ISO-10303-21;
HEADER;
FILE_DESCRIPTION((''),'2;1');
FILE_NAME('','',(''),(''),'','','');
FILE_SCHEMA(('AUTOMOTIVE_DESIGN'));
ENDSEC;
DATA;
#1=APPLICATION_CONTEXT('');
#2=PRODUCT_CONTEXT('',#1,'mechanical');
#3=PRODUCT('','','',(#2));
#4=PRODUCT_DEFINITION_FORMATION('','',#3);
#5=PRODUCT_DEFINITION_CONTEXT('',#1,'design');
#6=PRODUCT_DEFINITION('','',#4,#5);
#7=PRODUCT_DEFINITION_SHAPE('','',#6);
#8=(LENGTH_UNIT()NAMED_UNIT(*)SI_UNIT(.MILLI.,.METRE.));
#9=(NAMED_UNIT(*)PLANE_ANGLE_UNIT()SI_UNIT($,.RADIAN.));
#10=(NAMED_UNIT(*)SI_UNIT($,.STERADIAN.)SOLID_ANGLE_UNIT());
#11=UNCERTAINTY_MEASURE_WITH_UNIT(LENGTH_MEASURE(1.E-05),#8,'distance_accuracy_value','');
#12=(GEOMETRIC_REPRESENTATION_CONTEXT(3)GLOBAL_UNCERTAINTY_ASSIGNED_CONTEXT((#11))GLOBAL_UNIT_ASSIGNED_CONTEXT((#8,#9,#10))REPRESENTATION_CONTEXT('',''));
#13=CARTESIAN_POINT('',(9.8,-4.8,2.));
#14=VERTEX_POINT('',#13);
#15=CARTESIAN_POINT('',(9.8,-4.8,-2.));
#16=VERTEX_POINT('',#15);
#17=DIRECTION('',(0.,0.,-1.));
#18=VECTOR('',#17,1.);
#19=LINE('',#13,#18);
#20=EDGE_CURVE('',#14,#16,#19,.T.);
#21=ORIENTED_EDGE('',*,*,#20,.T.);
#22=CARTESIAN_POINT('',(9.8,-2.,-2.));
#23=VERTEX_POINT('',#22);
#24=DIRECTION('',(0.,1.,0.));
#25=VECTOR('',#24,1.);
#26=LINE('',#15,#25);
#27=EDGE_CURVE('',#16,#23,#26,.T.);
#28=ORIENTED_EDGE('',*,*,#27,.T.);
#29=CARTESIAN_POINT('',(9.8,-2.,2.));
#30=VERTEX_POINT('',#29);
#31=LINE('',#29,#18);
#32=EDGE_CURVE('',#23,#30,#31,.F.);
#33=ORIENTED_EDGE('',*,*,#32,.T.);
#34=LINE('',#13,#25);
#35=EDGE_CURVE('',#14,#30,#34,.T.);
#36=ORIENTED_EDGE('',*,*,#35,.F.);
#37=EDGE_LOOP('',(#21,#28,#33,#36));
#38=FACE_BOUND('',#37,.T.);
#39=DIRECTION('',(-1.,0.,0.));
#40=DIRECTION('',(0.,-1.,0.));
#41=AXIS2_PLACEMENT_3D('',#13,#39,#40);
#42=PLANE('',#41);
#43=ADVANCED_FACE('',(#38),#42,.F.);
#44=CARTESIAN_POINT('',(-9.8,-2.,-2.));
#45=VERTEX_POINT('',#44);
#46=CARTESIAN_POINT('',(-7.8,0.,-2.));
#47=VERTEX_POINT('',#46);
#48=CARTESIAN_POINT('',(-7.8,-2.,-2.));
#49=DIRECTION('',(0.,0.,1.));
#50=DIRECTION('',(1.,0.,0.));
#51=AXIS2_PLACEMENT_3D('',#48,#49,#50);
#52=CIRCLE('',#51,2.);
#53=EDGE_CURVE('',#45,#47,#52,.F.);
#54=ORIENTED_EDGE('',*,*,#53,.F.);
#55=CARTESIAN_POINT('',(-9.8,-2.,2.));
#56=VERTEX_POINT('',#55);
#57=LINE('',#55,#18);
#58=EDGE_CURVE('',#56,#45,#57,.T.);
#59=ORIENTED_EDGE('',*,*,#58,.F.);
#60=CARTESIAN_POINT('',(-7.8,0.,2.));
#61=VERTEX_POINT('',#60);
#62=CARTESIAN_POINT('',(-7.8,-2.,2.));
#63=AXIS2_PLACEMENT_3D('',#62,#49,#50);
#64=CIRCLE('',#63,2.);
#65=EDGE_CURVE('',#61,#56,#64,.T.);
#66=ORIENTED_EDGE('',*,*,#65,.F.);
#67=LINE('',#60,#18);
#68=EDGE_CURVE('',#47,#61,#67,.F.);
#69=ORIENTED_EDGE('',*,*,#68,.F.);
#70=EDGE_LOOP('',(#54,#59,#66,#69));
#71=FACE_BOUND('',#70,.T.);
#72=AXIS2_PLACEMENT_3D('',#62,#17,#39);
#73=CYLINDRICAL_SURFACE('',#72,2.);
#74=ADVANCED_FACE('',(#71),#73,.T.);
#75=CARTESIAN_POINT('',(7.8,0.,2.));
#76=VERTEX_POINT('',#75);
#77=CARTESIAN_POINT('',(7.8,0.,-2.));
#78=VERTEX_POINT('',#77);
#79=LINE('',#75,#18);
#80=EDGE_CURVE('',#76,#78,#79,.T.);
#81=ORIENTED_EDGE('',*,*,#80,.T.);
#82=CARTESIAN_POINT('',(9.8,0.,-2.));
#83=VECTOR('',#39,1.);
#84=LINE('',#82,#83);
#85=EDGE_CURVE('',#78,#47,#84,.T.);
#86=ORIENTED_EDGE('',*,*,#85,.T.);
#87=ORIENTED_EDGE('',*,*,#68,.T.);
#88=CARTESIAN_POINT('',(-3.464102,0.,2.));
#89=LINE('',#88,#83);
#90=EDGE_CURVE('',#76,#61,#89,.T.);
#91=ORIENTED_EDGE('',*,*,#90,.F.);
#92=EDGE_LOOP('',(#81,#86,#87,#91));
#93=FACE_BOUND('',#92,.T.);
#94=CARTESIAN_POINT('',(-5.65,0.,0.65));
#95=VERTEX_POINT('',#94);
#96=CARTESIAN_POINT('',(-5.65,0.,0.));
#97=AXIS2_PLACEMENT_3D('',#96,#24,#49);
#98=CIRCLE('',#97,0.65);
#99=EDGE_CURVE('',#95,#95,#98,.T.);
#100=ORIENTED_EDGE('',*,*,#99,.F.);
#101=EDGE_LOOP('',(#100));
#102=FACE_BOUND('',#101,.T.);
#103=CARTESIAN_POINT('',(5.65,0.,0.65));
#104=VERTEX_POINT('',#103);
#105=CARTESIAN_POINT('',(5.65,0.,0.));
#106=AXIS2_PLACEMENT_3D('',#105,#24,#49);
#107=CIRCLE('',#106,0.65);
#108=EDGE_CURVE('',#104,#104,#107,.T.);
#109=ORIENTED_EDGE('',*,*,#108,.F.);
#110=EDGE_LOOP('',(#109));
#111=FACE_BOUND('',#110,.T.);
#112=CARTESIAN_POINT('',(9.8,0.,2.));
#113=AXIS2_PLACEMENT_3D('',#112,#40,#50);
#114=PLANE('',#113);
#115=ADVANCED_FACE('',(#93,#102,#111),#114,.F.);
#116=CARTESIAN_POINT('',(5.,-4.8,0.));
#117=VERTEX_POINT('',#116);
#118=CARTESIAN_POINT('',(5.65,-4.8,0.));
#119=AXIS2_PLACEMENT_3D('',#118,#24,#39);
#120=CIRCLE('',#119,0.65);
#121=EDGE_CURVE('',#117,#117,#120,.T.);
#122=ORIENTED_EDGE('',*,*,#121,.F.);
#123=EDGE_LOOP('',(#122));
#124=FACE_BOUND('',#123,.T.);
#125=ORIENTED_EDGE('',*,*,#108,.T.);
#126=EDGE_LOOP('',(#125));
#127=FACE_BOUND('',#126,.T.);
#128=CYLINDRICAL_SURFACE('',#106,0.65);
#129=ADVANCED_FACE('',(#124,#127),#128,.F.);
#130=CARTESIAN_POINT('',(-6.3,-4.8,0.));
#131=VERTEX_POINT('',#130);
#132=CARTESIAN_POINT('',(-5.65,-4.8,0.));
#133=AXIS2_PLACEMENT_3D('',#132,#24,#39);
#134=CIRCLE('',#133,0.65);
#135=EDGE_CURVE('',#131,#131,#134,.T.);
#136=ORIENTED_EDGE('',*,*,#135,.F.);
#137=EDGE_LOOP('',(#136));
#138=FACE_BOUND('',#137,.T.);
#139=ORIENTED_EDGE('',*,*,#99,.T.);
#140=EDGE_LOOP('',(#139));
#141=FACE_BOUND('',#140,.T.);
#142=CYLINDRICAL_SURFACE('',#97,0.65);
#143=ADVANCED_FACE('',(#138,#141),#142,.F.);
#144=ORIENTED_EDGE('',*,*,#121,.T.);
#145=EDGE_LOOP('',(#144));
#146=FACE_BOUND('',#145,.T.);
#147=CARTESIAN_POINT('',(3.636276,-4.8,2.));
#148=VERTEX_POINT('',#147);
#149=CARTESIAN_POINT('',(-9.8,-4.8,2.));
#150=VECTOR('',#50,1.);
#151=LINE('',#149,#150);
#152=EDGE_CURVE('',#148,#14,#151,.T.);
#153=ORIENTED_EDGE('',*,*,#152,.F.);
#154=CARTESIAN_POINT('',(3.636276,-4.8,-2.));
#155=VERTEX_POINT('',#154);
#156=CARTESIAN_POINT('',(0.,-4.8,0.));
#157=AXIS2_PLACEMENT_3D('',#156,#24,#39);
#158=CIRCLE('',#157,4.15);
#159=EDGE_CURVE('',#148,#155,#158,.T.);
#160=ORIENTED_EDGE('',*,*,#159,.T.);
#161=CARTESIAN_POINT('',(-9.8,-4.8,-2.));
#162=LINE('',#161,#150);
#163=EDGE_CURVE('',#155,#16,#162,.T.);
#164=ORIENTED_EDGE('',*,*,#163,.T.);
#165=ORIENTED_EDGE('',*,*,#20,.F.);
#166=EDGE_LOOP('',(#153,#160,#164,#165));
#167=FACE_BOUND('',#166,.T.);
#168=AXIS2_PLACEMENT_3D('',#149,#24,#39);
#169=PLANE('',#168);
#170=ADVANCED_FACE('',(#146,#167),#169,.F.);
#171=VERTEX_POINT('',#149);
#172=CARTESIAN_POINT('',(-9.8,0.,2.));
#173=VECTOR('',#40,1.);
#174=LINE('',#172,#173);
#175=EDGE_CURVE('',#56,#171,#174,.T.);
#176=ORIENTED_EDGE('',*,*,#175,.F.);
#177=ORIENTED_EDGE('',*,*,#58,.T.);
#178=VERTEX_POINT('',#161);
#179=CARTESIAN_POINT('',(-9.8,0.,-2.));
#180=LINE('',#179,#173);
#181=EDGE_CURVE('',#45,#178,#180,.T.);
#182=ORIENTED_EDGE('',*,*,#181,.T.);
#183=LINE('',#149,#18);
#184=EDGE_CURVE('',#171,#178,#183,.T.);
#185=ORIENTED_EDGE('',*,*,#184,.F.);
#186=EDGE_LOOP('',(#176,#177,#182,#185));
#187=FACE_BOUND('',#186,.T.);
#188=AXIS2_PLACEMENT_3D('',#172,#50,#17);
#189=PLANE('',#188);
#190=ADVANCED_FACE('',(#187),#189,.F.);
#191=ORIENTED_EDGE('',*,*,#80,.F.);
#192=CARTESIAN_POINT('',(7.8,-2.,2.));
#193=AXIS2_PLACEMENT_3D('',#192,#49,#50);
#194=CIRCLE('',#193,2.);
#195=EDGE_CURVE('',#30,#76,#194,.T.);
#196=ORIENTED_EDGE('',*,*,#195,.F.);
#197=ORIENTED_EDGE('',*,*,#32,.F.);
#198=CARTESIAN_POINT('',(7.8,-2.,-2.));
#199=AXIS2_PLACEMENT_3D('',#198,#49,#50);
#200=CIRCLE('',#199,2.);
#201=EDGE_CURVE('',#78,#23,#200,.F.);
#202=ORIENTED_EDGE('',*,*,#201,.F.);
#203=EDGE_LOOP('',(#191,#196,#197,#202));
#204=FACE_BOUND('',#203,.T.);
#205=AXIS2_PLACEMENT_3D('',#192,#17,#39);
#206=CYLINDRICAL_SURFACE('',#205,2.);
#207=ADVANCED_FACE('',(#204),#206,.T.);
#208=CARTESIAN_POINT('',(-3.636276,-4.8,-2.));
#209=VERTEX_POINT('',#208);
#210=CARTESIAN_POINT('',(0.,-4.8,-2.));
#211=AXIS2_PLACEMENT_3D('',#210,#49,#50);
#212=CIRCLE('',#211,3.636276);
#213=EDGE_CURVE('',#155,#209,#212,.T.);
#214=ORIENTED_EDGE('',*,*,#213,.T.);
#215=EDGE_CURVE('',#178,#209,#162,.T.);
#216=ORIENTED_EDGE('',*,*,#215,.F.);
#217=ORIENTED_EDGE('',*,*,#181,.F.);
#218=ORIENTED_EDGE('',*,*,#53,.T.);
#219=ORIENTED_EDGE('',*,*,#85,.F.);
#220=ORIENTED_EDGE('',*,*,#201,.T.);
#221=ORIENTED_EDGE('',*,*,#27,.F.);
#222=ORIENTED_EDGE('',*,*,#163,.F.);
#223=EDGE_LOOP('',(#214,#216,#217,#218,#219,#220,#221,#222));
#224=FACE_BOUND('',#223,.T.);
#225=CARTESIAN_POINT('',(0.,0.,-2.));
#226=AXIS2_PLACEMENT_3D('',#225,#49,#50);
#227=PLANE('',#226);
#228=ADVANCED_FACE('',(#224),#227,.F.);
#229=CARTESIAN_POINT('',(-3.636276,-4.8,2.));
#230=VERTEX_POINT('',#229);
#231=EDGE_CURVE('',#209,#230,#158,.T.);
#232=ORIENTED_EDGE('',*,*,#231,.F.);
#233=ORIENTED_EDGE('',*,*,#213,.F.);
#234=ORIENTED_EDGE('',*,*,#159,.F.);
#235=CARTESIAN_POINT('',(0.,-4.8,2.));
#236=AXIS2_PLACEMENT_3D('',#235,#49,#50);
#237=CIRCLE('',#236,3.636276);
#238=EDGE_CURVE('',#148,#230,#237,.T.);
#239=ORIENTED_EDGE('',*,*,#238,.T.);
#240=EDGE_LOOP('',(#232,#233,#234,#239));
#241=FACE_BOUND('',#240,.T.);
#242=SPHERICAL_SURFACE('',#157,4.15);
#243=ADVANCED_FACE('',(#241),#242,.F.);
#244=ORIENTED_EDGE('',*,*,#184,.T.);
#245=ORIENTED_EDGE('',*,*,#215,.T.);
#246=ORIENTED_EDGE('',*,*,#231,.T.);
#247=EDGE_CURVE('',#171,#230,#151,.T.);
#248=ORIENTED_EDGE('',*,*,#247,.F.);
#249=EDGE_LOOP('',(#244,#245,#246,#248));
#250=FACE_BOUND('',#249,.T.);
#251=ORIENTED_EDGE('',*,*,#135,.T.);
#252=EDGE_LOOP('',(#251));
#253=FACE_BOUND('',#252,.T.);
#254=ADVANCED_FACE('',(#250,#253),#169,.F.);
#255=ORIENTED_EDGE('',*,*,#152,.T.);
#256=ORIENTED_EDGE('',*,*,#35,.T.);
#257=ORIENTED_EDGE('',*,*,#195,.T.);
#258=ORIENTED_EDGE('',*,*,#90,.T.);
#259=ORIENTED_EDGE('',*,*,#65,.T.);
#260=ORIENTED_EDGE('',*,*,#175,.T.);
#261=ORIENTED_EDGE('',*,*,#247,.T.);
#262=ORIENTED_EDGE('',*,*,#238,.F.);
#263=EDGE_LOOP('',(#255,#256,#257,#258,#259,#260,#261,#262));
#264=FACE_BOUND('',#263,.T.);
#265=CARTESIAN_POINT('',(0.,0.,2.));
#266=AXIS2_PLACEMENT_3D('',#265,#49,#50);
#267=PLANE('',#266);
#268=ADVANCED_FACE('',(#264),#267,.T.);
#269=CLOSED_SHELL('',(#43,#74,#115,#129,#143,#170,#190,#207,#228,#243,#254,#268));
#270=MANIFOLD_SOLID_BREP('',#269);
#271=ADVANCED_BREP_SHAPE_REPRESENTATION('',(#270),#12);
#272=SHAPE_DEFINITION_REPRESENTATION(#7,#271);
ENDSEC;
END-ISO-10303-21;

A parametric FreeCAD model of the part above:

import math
import FreeCAD as App
import Part
import Sketcher


def edges_at(feature, points):
    """Names of the edges that pass closest to the given points."""
    edges = feature.Shape.Edges
    near = lambda p: min(range(len(edges)), key=lambda i: edges[i].distToShape(Part.Vertex(*p))[0])
    return sorted({f"Edge{near(p) + 1}" for p in points})

doc = App.newDocument("Part")
body = doc.addObject("PartDesign::Body", "Body")

# Sketch on XY plane
sketch1 = doc.addObject("Sketcher::SketchObject", "Sketch")
body.addObject(sketch1)
sketch1.AttachmentSupport = (doc.XY_Plane, [""])
sketch1.MapMode = "FlatFace"
sketch1.addGeometry([
    Part.LineSegment(App.Vector(-9.8, 0, 0), App.Vector(-9.8, -4.8, 0)),
    Part.LineSegment(App.Vector(-9.8, -4.8, 0), App.Vector(9.8, -4.8, 0)),
    Part.LineSegment(App.Vector(9.8, -4.8, 0), App.Vector(9.8, 0, 0)),
    Part.LineSegment(App.Vector(9.8, 0, 0), App.Vector(-9.8, 0, 0)),
], False)
sketch1.addConstraint([
    Sketcher.Constraint("Coincident", 0, 2, 1, 1),
    Sketcher.Constraint("Coincident", 1, 2, 2, 1),
    Sketcher.Constraint("Coincident", 2, 2, 3, 1),
    Sketcher.Constraint("Coincident", 3, 2, 0, 1),
    Sketcher.Constraint("Vertical", 0),
    Sketcher.Constraint("Horizontal", 1),
    Sketcher.Constraint("Vertical", 2),
    Sketcher.Constraint("Horizontal", 3),
    Sketcher.Constraint("Symmetric", 2, 2, 3, 2, -1, 1),
    Sketcher.Constraint("DistanceX", 1, 1, 1, 2, 19.6),
    Sketcher.Constraint("DistanceY", 0, 2, 0, 1, 4.8),
])
pad1 = doc.addObject("PartDesign::Pad", "Pad")
body.addObject(pad1)
pad1.Profile = sketch1
pad1.Length = 4
pad1.Midplane = True

# Sketch on XZ plane
sketch2 = doc.addObject("Sketcher::SketchObject", "Sketch001")
body.addObject(sketch2)
sketch2.AttachmentSupport = (doc.XZ_Plane, [""])
sketch2.MapMode = "FlatFace"
sketch2.addGeometry([
    Part.Circle(App.Vector(-5.7, 0, 0), App.Vector(0, 0, 1), 0.7),
    Part.Circle(App.Vector(5.7, 0, 0), App.Vector(0, 0, 1), 0.7),
], False)
sketch2.addConstraint([
    Sketcher.Constraint("Equal", 0, 1),
    Sketcher.Constraint("Symmetric", 0, 3, 1, 3, -1, 1),
    Sketcher.Constraint("PointOnObject", 0, 3, -1),
    Sketcher.Constraint("Diameter", 0, 1.3),
    Sketcher.Constraint("DistanceX", 0, 3, 1, 3, 11.3),
])
doc.recompute()
hole = doc.addObject("PartDesign::Hole", "Hole")
body.addObject(hole)
hole.Profile = sketch2
hole.ThreadType = "None"
hole.Diameter = 1.3
hole.DepthType = "ThroughAll"
hole.Reversed = True

# Sketch on XY plane
sketch3 = doc.addObject("Sketcher::SketchObject", "Sketch002")
body.addObject(sketch3)
sketch3.AttachmentSupport = (doc.XY_Plane, [""])
sketch3.MapMode = "FlatFace"
sketch3.addGeometry([
    Part.LineSegment(App.Vector(0, -8.9, 0), App.Vector(0, -0.7, 0)),
    Part.ArcOfCircle(Part.Circle(App.Vector(0, -4.8, 0), App.Vector(0, 0, 1), 4.2), math.radians(90), math.radians(270)),
], False)
sketch3.addConstraint([
    Sketcher.Constraint("Coincident", 0, 1, 1, 2),
    Sketcher.Constraint("Coincident", 1, 1, 0, 2),
    Sketcher.Constraint("Vertical", 0),
    Sketcher.Constraint("PointOnObject", 1, 3, -2),
    Sketcher.Constraint("PointOnObject", 0, 1, -2),
    Sketcher.Constraint("Radius", 1, 4.15),
    Sketcher.Constraint("DistanceY", 1, 3, -1, 1, 4.8),
])
groove = doc.addObject("PartDesign::Groove", "Groove")
body.addObject(groove)
groove.Profile = sketch3
groove.ReferenceAxis = (sketch3, ["V_Axis"])
groove.Angle = 360
doc.recompute()

fillet = doc.addObject("PartDesign::Fillet", "Fillet")
body.addObject(fillet)
fillet.Base = (groove, edges_at(groove, [(9.8, 0, 0), (-9.8, 0, 0)]))
fillet.Radius = 2

doc.recompute()
